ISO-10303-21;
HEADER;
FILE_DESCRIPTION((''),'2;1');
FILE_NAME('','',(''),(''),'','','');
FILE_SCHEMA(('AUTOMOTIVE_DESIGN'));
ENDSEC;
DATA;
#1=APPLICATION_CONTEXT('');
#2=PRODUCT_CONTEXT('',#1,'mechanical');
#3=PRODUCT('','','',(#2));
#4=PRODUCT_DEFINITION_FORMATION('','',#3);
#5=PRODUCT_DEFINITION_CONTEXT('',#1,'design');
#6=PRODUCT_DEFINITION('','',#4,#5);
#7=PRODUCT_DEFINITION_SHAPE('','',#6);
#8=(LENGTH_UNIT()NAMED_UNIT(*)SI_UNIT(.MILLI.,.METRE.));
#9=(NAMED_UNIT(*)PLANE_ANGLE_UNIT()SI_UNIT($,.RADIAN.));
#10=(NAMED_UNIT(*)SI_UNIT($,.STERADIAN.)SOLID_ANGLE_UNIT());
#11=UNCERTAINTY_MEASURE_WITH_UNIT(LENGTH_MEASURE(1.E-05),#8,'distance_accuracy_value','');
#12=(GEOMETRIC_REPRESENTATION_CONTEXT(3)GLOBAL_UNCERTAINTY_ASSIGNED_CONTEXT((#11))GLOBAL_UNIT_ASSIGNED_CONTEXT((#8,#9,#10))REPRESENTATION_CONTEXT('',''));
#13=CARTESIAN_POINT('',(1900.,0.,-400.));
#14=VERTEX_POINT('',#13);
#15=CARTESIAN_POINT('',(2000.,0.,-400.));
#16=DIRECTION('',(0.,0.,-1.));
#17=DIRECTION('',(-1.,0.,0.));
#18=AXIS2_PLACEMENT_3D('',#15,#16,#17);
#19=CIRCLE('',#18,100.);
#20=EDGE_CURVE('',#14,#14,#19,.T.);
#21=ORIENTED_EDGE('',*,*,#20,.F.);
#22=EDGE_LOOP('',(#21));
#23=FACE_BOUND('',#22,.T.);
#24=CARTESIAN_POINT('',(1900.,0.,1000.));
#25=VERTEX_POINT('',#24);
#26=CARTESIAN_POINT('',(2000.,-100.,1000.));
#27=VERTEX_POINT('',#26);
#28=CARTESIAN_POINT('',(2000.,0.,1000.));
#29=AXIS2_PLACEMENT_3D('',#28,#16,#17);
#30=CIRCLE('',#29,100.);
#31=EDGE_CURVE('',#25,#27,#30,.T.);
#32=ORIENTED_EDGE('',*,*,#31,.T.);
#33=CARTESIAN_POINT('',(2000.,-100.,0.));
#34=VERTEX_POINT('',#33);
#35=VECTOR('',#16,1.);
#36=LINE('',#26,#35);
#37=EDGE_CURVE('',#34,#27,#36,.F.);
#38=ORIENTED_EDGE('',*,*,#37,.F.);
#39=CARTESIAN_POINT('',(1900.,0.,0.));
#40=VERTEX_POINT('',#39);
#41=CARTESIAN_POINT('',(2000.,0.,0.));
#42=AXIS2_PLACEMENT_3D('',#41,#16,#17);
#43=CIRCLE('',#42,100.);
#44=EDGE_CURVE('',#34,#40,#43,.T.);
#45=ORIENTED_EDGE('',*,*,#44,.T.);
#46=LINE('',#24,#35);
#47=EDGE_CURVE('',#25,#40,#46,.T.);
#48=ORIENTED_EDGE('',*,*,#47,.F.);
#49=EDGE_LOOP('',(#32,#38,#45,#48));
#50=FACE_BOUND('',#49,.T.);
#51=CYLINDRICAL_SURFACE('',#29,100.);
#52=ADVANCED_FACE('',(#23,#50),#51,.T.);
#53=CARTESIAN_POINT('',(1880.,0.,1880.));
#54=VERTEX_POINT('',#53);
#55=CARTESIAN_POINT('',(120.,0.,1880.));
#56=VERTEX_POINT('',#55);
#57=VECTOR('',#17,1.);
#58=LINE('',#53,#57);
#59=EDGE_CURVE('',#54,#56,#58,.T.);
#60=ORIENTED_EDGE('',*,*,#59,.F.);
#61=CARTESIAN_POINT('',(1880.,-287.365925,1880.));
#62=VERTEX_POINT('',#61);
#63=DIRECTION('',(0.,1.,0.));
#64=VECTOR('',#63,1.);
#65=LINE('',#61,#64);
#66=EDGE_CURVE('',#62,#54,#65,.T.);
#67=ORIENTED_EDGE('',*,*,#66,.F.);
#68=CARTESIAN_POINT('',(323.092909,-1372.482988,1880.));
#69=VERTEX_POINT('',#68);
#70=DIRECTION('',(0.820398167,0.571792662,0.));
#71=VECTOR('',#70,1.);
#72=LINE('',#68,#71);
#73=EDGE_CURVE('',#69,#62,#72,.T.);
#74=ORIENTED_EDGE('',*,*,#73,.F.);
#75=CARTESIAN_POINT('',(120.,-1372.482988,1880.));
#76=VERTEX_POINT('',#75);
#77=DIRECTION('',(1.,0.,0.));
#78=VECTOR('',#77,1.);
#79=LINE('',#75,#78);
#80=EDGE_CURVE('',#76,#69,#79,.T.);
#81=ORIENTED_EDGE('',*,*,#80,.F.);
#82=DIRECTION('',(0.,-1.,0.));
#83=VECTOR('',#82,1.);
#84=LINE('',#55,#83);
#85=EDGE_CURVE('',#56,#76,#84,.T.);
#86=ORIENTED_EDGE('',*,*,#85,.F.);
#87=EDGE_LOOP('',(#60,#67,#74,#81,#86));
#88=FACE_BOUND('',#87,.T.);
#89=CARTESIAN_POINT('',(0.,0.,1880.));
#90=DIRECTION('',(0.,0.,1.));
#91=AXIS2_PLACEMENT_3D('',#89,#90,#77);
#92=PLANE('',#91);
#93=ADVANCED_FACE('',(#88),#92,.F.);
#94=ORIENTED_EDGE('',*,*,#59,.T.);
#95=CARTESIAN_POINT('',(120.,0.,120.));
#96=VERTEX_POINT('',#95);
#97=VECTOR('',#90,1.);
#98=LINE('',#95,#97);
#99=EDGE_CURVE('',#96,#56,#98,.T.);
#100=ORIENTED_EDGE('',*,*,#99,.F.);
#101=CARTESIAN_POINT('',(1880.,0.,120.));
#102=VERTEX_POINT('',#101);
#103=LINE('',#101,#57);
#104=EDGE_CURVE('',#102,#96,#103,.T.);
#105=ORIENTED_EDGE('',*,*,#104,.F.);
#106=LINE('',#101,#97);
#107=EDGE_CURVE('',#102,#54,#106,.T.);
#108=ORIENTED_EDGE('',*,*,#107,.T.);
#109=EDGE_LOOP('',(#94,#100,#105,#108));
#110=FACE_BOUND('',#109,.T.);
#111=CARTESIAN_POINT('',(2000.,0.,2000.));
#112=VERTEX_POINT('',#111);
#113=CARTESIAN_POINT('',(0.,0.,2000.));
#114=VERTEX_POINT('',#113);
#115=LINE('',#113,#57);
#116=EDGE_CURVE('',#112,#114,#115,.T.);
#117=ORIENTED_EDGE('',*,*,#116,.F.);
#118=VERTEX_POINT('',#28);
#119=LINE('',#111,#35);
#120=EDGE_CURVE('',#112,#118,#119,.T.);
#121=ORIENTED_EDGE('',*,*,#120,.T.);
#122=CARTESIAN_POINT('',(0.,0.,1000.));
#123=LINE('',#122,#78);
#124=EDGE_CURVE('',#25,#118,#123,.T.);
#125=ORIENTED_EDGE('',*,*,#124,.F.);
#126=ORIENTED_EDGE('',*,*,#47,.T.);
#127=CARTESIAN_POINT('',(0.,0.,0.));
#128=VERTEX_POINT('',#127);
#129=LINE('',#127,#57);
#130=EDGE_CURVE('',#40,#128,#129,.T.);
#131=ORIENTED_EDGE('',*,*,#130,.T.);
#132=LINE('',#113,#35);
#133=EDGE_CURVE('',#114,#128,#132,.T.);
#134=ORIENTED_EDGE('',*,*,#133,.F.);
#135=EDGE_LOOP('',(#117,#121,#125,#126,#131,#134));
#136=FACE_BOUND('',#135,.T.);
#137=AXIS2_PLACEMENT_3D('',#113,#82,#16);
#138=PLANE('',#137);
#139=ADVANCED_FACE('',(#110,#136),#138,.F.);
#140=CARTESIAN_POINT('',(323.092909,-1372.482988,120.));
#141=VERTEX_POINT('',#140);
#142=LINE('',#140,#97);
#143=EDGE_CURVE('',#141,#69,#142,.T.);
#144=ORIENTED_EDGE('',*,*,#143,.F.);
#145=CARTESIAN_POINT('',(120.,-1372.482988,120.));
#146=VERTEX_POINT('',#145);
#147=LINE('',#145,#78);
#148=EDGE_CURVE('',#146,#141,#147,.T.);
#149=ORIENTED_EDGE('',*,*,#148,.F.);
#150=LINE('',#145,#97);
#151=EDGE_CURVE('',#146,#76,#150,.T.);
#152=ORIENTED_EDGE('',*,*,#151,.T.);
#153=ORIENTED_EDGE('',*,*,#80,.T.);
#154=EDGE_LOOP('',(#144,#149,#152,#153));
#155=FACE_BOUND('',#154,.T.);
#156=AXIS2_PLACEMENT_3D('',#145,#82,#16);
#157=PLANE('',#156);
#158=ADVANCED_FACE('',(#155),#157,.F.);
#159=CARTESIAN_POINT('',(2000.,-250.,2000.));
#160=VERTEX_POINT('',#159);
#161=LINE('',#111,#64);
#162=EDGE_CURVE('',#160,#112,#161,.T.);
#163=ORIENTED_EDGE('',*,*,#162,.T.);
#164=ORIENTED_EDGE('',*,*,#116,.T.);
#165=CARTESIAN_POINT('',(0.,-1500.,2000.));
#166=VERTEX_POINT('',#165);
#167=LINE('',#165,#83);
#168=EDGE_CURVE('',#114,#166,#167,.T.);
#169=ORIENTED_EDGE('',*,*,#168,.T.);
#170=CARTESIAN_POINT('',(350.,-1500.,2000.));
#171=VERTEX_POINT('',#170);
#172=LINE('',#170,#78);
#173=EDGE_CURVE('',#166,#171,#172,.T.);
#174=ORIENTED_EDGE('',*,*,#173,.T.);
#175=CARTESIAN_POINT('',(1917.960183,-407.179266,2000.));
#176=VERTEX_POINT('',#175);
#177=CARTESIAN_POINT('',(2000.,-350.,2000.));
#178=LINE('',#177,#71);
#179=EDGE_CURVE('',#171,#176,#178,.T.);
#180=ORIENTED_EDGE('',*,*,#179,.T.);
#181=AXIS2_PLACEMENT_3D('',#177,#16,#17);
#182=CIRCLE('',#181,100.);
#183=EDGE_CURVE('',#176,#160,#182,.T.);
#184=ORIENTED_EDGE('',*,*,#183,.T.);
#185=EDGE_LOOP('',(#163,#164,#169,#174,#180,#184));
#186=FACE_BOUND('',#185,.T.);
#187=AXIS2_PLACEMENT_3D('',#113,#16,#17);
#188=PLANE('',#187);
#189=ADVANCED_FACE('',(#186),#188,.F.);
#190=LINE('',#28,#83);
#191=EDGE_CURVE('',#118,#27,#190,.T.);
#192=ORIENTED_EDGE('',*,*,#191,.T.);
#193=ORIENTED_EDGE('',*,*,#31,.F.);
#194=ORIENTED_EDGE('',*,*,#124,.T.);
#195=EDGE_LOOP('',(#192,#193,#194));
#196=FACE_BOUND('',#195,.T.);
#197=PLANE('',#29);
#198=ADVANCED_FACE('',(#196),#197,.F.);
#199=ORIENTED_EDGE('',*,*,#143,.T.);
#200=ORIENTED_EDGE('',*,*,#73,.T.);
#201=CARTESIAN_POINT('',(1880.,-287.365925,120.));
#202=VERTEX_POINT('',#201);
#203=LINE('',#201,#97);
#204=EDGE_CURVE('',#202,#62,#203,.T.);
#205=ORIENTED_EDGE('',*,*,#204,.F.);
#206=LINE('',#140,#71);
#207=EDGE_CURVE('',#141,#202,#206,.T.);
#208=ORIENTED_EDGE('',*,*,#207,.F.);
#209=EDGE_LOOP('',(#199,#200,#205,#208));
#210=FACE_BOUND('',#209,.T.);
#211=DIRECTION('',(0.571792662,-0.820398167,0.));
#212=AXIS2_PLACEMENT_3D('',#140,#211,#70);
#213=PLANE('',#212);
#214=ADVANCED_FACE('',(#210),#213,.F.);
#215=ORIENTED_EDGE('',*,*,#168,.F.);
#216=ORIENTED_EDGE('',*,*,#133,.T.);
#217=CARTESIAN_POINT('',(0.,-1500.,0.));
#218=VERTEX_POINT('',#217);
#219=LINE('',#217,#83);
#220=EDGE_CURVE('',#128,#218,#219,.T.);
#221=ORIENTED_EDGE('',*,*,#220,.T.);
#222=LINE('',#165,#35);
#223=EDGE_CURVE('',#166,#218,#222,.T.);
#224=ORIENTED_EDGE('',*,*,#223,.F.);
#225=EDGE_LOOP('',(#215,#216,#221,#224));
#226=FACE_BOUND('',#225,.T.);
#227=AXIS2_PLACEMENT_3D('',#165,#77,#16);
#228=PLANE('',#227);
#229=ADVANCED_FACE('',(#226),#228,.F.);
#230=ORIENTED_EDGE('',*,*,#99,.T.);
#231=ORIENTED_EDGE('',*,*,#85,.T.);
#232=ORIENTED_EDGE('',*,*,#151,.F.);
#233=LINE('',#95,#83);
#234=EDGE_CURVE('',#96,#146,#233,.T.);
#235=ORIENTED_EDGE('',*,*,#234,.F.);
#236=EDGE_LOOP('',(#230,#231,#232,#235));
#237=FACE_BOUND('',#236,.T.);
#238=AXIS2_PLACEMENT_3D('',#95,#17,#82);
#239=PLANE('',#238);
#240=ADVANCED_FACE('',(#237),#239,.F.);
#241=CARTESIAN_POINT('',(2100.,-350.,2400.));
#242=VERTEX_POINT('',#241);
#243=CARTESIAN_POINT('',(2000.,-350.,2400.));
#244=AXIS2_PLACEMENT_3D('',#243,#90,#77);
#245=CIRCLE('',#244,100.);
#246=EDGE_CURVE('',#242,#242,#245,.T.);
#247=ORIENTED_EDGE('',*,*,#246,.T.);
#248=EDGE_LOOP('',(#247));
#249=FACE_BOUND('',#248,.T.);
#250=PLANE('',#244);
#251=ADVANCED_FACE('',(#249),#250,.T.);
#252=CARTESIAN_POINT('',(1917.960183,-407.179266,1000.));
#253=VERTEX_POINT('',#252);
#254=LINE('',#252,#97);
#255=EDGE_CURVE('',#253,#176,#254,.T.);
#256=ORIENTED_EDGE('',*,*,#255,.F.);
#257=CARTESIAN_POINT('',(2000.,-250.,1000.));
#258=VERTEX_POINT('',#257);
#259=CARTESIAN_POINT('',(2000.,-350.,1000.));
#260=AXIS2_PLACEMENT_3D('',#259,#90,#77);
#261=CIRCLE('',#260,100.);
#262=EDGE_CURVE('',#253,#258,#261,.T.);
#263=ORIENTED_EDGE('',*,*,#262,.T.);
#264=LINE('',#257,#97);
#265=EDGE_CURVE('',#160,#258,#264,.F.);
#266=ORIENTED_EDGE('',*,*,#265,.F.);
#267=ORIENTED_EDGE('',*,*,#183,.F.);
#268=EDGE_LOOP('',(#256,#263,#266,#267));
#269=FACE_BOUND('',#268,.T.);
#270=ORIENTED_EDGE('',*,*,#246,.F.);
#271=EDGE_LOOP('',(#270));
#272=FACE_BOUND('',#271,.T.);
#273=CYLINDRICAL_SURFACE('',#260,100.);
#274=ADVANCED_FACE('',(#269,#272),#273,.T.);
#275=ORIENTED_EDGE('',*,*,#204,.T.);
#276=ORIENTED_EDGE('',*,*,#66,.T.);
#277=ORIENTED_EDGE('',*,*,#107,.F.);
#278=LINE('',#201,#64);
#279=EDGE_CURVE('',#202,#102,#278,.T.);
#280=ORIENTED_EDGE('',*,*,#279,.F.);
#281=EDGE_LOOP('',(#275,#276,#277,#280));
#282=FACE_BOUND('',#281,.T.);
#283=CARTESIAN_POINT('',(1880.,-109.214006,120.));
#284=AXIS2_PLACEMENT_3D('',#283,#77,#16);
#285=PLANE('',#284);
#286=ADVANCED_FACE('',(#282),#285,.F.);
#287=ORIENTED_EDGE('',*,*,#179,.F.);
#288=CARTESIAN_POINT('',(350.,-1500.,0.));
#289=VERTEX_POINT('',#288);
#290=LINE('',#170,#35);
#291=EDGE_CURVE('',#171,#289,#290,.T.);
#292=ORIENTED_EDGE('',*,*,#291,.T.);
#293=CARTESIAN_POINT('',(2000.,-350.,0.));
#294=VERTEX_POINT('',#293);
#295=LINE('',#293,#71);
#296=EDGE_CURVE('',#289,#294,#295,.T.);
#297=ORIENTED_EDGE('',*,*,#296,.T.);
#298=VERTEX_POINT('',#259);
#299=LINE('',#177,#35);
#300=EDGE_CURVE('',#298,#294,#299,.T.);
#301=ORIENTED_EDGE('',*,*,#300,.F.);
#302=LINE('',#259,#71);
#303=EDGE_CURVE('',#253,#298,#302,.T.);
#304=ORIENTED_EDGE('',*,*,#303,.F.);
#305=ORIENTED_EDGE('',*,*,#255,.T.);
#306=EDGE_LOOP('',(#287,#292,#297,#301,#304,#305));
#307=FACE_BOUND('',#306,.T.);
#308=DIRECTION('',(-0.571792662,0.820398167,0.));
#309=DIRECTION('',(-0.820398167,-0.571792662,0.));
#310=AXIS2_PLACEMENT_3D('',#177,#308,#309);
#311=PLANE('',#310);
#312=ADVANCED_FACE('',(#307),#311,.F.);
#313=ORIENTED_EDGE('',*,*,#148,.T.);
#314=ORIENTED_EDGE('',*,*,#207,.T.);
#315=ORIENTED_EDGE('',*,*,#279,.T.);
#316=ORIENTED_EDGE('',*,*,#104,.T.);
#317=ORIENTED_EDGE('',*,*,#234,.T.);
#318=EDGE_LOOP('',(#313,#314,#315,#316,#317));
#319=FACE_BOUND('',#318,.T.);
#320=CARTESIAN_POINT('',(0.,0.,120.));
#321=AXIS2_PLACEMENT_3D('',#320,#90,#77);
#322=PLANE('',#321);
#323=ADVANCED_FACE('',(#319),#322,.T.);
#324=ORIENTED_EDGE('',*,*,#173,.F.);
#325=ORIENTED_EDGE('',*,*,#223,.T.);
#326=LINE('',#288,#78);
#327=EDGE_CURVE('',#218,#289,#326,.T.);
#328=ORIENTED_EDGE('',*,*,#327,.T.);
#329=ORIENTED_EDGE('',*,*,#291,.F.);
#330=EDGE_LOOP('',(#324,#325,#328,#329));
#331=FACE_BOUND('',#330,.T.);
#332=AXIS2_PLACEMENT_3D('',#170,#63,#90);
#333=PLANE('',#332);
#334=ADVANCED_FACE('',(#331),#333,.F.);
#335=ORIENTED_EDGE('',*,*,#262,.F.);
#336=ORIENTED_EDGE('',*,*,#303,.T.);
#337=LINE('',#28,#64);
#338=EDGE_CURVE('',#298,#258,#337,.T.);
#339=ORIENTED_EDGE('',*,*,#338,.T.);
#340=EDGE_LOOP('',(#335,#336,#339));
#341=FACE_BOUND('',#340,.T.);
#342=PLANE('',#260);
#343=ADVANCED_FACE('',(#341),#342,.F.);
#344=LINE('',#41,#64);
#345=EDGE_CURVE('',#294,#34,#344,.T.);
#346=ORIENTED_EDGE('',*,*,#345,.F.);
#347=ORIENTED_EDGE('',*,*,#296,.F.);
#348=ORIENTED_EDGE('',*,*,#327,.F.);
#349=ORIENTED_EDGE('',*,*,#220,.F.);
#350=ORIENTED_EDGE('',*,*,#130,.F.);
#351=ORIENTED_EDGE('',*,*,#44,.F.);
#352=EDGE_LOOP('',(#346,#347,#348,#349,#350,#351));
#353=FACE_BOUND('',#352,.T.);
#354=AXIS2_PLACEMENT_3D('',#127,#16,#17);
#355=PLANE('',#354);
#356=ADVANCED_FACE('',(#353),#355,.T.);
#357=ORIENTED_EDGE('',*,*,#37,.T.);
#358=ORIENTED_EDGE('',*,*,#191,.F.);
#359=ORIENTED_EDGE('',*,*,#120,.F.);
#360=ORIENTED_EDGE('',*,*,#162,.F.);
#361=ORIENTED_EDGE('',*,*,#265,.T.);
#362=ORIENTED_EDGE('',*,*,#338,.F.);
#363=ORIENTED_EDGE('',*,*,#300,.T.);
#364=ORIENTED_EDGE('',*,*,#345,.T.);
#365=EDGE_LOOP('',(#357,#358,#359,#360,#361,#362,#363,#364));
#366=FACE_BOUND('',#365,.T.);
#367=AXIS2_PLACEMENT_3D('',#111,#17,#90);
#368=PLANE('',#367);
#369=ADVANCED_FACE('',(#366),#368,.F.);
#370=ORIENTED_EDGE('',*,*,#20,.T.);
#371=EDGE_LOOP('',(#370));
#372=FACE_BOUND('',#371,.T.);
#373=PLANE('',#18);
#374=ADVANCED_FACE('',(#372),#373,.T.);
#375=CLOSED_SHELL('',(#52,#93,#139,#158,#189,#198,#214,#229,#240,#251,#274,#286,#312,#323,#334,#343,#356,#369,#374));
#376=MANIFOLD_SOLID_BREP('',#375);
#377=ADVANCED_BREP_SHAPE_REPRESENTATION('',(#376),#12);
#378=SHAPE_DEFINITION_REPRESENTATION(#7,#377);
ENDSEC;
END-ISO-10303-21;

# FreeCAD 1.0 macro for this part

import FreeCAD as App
import Part
import Sketcher
Q = App.Units.Quantity


def add_polygon(sketch, points):
    """Adds a closed chain of lines whose ends are joined by coincident constraints."""
    first, n = sketch.GeometryCount, len(points)
    for a, b in zip(points, points[1:] + points[:1]):
        sketch.addGeometry(Part.LineSegment(App.Vector(*a, 0), App.Vector(*b, 0)), False)
    for i in range(n):
        sketch.addConstraint(Sketcher.Constraint("Coincident", first + i, 2, first + (i + 1) % n, 1))

doc = App.newDocument("Part")
body = doc.addObject("PartDesign::Body", "Body")

# Sketch on XY plane
sketch1 = doc.addObject("Sketcher::SketchObject", "Sketch")
body.addObject(sketch1)
sketch1.AttachmentSupport = (doc.XY_Plane, [""])
sketch1.MapMode = "FlatFace"
add_polygon(sketch1, [(2000, 0), (0, 0), (0, -1500), (350, -1500), (2000, -350)])  # lines 0-4
sketch1.addConstraint([
    Sketcher.Constraint("Horizontal", 0),
    Sketcher.Constraint("Vertical", 1),
    Sketcher.Constraint("Horizontal", 2),
    Sketcher.Constraint("Vertical", 4),
    Sketcher.Constraint("Coincident", 0, 2, -1, 1),
    Sketcher.Constraint("Equal", 2, 4),
    Sketcher.Constraint("DistanceX", 0, 2, 0, 1, Q("2000 mm")),
    Sketcher.Constraint("DistanceX", 2, 1, 2, 2, Q("350 mm")),
    Sketcher.Constraint("DistanceY", 1, 2, 1, 1, Q("1500 mm")),
])
pad1 = doc.addObject("PartDesign::Pad", "Pad")
body.addObject(pad1)
pad1.Profile = sketch1
pad1.Length = 2000

# Sketch on XY plane
sketch2 = doc.addObject("Sketcher::SketchObject", "Sketch001")
body.addObject(sketch2)
sketch2.AttachmentSupport = (doc.XY_Plane, [""])
sketch2.MapMode = "FlatFace"
sketch2.AttachmentOffset = App.Placement(App.Vector(0, 0, 2000), App.Rotation())
add_polygon(sketch2, [(120, 0), (120, -1372), (323, -1372), (1880, -287), (1880, 0)])  # lines 0-4
sketch2.addConstraint([
    Sketcher.Constraint("Vertical", 0),
    Sketcher.Constraint("Horizontal", 1),
    Sketcher.Constraint("Vertical", 3),
    Sketcher.Constraint("Horizontal", 4),
    Sketcher.Constraint("PointOnObject", 3, 2, -1),
    Sketcher.Constraint("DistanceX", 4, 2, 4, 1, Q("1760 mm")),
    Sketcher.Constraint("DistanceX", -1, 1, 0, 2, Q("120 mm")),
    Sketcher.Constraint("DistanceX", 1, 1, 1, 2, Q("203.092909 mm")),
    Sketcher.Constraint("DistanceY", 0, 2, 0, 1, Q("1372.482988 mm")),
    Sketcher.Constraint("DistanceY", 3, 1, 3, 2, Q("287.365925 mm")),
])
pocket1 = doc.addObject("PartDesign::Pocket", "Pocket")
body.addObject(pocket1)
pocket1.Profile = sketch2
pocket1.Length = 1880

# Sketch on XY plane
sketch3 = doc.addObject("Sketcher::SketchObject", "Sketch002")
body.addObject(sketch3)
sketch3.AttachmentSupport = (doc.XY_Plane, [""])
sketch3.MapMode = "FlatFace"
sketch3.AttachmentOffset = App.Placement(App.Vector(0, 0, 2000), App.Rotation())
add_polygon(sketch3, [(120, 0), (120, -1372), (323, -1372), (1880, -287), (1880, 0)])  # lines 0-4
sketch3.addConstraint([
    Sketcher.Constraint("Vertical", 0),
    Sketcher.Constraint("Horizontal", 1),
    Sketcher.Constraint("Vertical", 3),
    Sketcher.Constraint("Horizontal", 4),
    Sketcher.Constraint("PointOnObject", 3, 2, -1),
    Sketcher.Constraint("DistanceX", 4, 2, 4, 1, Q("1760 mm")),
    Sketcher.Constraint("DistanceX", -1, 1, 0, 2, Q("120 mm")),
    Sketcher.Constraint("DistanceX", 1, 1, 1, 2, Q("203.092909 mm")),
    Sketcher.Constraint("DistanceY", 0, 2, 0, 1, Q("1372.482988 mm")),
    Sketcher.Constraint("DistanceY", 3, 1, 3, 2, Q("287.365925 mm")),
])
pad2 = doc.addObject("PartDesign::Pad", "Pad001")
body.addObject(pad2)
pad2.Profile = sketch3
pad2.Length = 120
pad2.Reversed = True

# Sketch on XY plane
sketch4 = doc.addObject("Sketcher::SketchObject", "Sketch003")
body.addObject(sketch4)
sketch4.AttachmentSupport = (doc.XY_Plane, [""])
sketch4.MapMode = "FlatFace"
sketch4.addGeometry(Part.Circle(App.Vector(2000, 0, 0), App.Vector(0, 0, 1), 100), False)
sketch4.addConstraint([
    Sketcher.Constraint("PointOnObject", 0, 3, -1),
    Sketcher.Constraint("Diameter", 0, Q("200 mm")),
    Sketcher.Constraint("DistanceX", -1, 1, 0, 3, Q("2000 mm")),
])
pad3 = doc.addObject("PartDesign::Pad", "Pad002")
body.addObject(pad3)
pad3.Profile = sketch4
pad3.Type = "TwoLengths"
pad3.Length = 400
pad3.Length2 = 1000
pad3.Reversed = True

# Sketch on XY plane
sketch5 = doc.addObject("Sketcher::SketchObject", "Sketch004")
body.addObject(sketch5)
sketch5.AttachmentSupport = (doc.XY_Plane, [""])
sketch5.MapMode = "FlatFace"
sketch5.AttachmentOffset = App.Placement(App.Vector(0, 0, 2000), App.Rotation())
sketch5.addGeometry(Part.Circle(App.Vector(2000, -350, 0), App.Vector(0, 0, 1), 100), False)
sketch5.addConstraint([
    Sketcher.Constraint("Diameter", 0, Q("200 mm")),
    Sketcher.Constraint("DistanceX", -1, 1, 0, 3, Q("2000 mm")),
    Sketcher.Constraint("DistanceY", 0, 3, -1, 1, Q("350 mm")),
])
pad4 = doc.addObject("PartDesign::Pad", "Pad003")
body.addObject(pad4)
pad4.Profile = sketch5
pad4.Type = "TwoLengths"
pad4.Length = 400
pad4.Length2 = 1000

doc.recompute()
